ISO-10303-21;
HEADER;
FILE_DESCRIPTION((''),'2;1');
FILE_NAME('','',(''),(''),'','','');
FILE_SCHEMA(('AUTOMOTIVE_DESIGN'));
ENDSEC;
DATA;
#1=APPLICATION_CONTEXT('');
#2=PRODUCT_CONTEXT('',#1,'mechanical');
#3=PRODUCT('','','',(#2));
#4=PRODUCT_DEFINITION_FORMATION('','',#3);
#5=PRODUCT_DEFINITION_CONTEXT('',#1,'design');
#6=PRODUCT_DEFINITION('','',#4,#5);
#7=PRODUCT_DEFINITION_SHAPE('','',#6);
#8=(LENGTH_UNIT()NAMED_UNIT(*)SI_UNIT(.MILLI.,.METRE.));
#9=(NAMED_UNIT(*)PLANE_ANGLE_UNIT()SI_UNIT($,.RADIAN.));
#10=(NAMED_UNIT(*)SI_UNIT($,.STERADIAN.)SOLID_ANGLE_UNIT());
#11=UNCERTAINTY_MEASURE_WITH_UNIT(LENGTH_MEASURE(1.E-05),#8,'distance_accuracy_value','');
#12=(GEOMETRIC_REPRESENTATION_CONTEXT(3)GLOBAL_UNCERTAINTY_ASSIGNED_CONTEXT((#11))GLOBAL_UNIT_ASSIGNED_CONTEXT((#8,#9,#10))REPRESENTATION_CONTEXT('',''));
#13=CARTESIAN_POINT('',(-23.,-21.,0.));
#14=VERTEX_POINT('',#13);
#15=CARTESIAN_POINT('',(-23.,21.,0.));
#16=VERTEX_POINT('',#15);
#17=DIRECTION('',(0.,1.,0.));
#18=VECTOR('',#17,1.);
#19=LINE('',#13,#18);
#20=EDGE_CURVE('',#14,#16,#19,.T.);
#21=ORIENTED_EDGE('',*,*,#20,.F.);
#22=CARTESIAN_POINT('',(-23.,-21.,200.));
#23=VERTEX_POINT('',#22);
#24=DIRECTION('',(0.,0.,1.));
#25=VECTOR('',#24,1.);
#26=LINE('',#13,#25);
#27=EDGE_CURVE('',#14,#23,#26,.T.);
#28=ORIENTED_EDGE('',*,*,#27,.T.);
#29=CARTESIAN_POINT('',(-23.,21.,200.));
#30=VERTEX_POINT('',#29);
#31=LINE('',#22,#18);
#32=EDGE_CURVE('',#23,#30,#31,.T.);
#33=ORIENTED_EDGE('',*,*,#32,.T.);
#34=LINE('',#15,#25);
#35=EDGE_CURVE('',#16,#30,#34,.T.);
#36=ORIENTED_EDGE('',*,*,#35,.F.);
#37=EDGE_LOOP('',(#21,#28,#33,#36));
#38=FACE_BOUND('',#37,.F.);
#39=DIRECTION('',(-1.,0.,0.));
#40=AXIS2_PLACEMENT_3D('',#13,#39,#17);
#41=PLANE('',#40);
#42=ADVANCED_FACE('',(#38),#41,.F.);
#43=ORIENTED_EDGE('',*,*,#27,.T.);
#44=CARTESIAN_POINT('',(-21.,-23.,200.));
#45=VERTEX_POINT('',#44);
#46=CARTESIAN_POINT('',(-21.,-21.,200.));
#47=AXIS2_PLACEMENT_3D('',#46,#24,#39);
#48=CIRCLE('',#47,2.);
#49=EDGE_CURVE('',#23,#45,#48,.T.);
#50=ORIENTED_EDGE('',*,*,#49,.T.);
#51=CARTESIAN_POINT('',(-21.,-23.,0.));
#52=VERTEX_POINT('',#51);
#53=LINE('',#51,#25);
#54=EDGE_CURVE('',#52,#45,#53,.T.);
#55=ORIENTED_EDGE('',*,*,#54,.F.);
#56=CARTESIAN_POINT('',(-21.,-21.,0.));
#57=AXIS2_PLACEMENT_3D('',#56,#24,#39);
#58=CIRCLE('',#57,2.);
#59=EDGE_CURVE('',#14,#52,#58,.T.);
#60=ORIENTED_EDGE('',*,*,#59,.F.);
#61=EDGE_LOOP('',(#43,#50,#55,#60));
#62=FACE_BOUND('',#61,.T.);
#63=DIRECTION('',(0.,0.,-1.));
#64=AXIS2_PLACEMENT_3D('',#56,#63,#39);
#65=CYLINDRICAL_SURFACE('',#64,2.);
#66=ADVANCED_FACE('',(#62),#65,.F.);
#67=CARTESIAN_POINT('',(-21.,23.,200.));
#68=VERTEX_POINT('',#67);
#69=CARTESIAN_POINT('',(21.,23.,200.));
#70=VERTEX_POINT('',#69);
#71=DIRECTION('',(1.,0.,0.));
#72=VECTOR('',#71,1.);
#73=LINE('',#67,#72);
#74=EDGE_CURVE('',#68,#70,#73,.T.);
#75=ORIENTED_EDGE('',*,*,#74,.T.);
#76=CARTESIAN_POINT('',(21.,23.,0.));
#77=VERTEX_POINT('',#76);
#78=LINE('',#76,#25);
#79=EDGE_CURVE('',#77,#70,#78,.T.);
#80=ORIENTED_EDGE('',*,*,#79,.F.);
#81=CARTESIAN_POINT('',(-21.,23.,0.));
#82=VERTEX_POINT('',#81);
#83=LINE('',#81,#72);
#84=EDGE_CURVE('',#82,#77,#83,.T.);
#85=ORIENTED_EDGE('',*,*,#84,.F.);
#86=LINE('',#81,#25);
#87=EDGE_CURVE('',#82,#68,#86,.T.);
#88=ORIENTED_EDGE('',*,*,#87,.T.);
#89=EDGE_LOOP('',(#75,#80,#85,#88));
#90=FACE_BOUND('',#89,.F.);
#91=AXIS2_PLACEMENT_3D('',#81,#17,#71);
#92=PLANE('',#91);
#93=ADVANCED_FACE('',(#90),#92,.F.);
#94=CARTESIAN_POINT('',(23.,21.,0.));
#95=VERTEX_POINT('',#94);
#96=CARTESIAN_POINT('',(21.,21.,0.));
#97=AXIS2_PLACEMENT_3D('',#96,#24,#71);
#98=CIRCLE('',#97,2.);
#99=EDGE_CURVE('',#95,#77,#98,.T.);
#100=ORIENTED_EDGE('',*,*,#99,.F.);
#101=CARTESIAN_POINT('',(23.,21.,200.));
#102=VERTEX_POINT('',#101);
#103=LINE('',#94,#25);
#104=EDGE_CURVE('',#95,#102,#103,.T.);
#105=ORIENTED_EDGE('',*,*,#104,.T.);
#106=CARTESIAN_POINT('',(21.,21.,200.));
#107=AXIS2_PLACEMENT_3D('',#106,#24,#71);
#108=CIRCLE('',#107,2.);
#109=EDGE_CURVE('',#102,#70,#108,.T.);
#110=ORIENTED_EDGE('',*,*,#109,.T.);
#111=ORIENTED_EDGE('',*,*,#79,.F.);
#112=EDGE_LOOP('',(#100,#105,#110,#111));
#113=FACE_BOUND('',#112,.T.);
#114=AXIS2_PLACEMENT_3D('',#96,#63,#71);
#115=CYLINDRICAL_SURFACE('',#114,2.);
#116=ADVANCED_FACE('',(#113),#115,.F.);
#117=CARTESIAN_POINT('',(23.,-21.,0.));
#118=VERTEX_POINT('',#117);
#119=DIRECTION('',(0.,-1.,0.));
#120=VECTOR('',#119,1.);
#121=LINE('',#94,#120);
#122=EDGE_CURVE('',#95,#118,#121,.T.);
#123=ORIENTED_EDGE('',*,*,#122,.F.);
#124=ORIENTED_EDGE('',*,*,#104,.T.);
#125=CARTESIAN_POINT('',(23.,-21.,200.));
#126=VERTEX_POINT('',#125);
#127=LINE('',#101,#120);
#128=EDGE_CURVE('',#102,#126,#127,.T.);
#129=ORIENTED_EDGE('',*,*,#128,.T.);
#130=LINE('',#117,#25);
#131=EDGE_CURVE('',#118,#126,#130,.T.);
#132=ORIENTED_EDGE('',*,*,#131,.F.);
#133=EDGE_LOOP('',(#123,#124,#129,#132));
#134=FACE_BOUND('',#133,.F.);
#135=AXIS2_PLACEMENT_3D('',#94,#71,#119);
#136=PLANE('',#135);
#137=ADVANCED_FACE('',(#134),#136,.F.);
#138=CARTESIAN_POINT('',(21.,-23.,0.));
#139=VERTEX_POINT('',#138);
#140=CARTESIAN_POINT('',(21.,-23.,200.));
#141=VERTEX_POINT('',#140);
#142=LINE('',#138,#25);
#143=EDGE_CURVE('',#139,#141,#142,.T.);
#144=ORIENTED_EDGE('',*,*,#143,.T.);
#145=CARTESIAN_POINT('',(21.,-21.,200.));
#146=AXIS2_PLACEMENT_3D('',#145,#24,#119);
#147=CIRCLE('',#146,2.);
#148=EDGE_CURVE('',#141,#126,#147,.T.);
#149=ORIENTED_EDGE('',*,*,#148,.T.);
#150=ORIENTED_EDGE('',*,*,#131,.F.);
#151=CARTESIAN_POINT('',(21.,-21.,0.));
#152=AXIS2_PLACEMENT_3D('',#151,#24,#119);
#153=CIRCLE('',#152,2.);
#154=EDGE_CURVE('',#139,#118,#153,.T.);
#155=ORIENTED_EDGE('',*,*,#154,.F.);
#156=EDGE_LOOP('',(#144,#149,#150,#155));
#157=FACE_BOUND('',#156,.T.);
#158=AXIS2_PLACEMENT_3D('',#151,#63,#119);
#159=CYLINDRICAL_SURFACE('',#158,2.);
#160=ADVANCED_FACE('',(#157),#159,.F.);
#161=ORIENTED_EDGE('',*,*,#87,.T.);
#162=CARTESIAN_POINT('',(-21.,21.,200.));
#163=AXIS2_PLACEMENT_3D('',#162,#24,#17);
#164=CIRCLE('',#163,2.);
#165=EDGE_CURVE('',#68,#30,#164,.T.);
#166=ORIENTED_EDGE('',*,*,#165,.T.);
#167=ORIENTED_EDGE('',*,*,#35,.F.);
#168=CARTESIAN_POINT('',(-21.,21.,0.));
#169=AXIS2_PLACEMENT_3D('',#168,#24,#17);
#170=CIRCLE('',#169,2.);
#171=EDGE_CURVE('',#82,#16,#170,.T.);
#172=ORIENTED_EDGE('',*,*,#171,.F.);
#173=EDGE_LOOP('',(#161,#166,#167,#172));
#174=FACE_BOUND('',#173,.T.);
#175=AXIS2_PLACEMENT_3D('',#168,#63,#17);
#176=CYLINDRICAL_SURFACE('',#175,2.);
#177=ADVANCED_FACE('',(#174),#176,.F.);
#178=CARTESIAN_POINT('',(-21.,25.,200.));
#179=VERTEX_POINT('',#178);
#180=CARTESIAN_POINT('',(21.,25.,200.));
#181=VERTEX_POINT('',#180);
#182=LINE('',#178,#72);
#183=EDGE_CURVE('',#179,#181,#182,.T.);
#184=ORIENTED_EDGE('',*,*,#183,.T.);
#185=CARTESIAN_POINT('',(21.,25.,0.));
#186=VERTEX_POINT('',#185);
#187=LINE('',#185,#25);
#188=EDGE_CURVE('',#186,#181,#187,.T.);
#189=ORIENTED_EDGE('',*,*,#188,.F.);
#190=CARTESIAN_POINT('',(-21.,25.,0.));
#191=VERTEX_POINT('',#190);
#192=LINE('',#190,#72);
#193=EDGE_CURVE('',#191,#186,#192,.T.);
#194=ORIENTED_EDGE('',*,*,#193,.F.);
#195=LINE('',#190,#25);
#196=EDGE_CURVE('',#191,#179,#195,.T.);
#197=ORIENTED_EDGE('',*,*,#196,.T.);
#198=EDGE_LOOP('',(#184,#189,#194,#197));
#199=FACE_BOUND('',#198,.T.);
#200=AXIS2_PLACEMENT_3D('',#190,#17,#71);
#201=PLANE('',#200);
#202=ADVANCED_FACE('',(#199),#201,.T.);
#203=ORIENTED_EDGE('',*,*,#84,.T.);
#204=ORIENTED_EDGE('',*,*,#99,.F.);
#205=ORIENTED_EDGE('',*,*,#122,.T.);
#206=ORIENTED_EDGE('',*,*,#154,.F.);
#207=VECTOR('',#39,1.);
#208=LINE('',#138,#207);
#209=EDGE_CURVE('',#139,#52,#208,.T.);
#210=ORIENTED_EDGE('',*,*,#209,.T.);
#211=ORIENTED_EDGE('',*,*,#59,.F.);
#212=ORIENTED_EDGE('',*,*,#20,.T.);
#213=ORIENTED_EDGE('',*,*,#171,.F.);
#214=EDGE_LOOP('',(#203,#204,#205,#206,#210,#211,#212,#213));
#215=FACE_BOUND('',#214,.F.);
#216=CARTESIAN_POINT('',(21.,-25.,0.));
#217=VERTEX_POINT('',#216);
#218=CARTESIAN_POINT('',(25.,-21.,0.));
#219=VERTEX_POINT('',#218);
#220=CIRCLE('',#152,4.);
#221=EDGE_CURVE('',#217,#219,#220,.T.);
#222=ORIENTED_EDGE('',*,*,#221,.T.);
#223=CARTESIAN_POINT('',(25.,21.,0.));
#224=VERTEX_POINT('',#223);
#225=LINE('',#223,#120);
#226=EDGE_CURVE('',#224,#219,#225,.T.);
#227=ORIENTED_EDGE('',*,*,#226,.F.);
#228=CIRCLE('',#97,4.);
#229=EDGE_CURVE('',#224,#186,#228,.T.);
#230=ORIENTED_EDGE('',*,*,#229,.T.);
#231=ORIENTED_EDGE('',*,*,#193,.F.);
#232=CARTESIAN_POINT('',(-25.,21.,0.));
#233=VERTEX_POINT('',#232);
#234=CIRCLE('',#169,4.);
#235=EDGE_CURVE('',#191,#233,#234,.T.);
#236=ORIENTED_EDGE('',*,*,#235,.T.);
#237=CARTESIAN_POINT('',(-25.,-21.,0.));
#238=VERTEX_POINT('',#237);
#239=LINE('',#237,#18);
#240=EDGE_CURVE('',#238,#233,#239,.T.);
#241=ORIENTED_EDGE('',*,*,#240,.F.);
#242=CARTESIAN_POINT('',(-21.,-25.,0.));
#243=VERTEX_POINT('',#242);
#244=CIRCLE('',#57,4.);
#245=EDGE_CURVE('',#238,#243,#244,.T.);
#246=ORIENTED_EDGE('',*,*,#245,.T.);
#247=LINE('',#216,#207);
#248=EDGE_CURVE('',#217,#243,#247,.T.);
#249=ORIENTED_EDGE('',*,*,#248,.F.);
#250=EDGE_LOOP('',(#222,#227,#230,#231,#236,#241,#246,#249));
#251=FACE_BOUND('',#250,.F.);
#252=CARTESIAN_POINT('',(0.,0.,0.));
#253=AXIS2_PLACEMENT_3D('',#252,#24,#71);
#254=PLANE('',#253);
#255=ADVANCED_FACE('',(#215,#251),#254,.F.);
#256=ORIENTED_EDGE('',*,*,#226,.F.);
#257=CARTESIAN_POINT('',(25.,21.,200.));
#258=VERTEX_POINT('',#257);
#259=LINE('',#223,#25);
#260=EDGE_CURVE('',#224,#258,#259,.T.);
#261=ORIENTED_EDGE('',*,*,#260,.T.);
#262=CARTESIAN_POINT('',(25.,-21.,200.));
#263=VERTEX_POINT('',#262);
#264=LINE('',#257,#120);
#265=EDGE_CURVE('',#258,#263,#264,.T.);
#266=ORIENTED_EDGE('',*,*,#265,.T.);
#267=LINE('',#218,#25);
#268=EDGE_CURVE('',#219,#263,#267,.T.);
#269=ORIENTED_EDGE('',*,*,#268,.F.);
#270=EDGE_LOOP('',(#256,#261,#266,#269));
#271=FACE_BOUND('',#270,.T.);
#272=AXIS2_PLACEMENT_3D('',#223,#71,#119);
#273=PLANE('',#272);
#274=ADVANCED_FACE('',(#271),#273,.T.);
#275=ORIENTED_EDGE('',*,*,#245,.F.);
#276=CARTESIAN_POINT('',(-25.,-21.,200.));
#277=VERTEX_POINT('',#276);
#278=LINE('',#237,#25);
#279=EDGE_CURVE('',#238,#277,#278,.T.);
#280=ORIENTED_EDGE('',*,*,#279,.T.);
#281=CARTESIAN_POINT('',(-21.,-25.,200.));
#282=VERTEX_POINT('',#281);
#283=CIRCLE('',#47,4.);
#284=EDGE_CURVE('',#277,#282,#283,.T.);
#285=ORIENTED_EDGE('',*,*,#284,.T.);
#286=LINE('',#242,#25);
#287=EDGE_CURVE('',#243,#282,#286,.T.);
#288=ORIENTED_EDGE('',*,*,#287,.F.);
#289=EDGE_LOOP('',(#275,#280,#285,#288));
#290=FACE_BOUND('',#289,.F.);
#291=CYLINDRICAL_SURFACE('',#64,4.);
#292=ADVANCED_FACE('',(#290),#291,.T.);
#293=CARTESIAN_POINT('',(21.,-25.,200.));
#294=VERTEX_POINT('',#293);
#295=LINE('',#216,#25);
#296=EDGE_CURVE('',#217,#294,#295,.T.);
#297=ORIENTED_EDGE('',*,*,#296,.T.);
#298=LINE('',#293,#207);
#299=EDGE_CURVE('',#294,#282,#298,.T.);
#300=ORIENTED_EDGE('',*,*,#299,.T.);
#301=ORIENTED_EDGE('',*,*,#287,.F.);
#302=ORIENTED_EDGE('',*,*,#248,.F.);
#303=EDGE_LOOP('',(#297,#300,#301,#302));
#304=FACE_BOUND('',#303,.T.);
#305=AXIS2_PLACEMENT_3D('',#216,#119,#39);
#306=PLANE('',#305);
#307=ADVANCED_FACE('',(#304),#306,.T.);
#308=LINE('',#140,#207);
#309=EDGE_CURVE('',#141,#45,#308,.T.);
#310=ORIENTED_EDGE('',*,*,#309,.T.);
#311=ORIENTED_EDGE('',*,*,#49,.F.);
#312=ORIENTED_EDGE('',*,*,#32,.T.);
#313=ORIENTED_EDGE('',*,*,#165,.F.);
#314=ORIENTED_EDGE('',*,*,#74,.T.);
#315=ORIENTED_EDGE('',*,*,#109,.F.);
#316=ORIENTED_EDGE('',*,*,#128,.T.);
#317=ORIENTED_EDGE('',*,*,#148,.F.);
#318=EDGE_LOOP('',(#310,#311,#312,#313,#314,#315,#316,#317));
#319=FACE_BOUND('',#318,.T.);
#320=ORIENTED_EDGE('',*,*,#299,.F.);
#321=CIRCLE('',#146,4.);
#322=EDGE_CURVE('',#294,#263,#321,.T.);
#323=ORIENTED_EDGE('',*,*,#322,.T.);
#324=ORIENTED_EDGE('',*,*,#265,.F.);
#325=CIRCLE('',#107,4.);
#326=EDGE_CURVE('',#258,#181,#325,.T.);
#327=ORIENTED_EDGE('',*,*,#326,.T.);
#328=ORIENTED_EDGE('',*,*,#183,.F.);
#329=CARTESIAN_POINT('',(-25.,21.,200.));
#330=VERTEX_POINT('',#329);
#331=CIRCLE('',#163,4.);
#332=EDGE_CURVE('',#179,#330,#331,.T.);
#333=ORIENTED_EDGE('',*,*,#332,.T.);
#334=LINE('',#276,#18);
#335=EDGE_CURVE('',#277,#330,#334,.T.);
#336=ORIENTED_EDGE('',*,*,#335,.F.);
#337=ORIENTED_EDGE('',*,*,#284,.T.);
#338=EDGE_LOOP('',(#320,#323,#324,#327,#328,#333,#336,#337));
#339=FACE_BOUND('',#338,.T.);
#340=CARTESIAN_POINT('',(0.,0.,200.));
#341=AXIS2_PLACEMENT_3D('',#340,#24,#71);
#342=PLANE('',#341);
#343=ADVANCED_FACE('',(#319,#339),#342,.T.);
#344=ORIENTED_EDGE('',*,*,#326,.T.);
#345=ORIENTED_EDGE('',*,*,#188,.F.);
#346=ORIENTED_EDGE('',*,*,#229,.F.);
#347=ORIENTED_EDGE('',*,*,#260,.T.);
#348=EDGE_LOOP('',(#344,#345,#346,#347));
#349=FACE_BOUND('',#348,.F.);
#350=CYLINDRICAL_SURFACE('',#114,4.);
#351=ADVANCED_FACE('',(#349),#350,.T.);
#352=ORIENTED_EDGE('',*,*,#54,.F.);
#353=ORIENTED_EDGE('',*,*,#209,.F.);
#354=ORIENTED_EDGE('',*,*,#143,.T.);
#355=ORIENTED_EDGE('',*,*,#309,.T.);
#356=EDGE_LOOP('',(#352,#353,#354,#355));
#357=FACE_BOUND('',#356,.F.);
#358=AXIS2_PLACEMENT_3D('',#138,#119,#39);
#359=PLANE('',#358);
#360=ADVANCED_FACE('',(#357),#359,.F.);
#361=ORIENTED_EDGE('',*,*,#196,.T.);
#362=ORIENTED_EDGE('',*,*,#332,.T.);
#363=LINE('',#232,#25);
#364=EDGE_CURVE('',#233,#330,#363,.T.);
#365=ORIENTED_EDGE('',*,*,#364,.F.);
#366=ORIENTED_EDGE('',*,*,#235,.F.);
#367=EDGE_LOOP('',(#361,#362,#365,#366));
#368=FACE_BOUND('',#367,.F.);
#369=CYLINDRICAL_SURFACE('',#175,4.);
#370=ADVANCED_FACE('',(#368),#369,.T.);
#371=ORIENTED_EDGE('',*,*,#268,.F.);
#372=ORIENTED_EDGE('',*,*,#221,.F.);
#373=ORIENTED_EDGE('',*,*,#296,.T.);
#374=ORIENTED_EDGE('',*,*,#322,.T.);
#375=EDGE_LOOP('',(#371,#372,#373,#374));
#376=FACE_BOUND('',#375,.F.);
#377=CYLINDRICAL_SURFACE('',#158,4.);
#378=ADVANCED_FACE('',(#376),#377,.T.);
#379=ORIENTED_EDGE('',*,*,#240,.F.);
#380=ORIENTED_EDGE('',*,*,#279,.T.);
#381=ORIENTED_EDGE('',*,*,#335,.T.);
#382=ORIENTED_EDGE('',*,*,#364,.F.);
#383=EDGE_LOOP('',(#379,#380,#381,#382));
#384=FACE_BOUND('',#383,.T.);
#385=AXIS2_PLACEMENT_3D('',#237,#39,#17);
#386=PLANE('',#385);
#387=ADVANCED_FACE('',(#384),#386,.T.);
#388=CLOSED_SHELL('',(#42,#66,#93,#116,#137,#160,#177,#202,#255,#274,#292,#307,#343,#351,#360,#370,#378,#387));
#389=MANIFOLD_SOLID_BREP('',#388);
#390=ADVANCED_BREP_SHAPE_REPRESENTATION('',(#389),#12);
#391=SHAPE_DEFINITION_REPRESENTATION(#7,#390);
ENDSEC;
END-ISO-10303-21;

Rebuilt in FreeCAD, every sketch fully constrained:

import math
import FreeCAD as App
import Part
import Sketcher

doc = App.newDocument("Part")
params = doc.addObject("Spreadsheet::Sheet", "Params")
for row, (alias, value) in enumerate([
    ("sketch1_radius", "4 mm"),
    ("sketch1_radius2", "2 mm"),
    ("pad1_length", "200 mm"),
], start=1):
    params.set(f"A{row}", alias)
    params.set(f"B{row}", "=" + value)
    params.setAlias(f"B{row}", alias)

body = doc.addObject("PartDesign::Body", "Body")

sketch1 = body.newObject("Sketcher::SketchObject", "Sketch")
sketch1.AttachmentSupport = (doc.getObject("XY_Plane"), [""])
sketch1.MapMode = "FlatFace"
sketch1.addGeometry(Part.LineSegment(App.Vector(-25, 21, 0), App.Vector(-25, -21, 0)), False)
sketch1.addGeometry(Part.ArcOfCircle(Part.Circle(App.Vector(-21, -21, 0), App.Vector(0, 0, 1), 4), math.radians(180), math.radians(270)), False)
sketch1.addGeometry(Part.LineSegment(App.Vector(-21, -25, 0), App.Vector(21, -25, 0)), False)
sketch1.addGeometry(Part.ArcOfCircle(Part.Circle(App.Vector(21, -21, 0), App.Vector(0, 0, 1), 4), math.radians(-90), math.radians(0)), False)
sketch1.addGeometry(Part.LineSegment(App.Vector(25, -21, 0), App.Vector(25, 21, 0)), False)
sketch1.addGeometry(Part.ArcOfCircle(Part.Circle(App.Vector(21, 21, 0), App.Vector(0, 0, 1), 4), math.radians(0), math.radians(90)), False)
sketch1.addGeometry(Part.LineSegment(App.Vector(21, 25, 0), App.Vector(-21, 25, 0)), False)
sketch1.addGeometry(Part.ArcOfCircle(Part.Circle(App.Vector(-21, 21, 0), App.Vector(0, 0, 1), 4), math.radians(90), math.radians(180)), False)
sketch1.addGeometry(Part.ArcOfCircle(Part.Circle(App.Vector(-21, 21, 0), App.Vector(0, 0, 1), 2), math.radians(90), math.radians(180)), False)
sketch1.addGeometry(Part.LineSegment(App.Vector(-21, 23, 0), App.Vector(21, 23, 0)), False)
sketch1.addGeometry(Part.ArcOfCircle(Part.Circle(App.Vector(21, 21, 0), App.Vector(0, 0, 1), 2), math.radians(0), math.radians(90)), False)
sketch1.addGeometry(Part.LineSegment(App.Vector(23, 21, 0), App.Vector(23, -21, 0)), False)
sketch1.addGeometry(Part.ArcOfCircle(Part.Circle(App.Vector(21, -21, 0), App.Vector(0, 0, 1), 2), math.radians(-90), math.radians(0)), False)
sketch1.addGeometry(Part.LineSegment(App.Vector(21, -23, 0), App.Vector(-21, -23, 0)), False)
sketch1.addGeometry(Part.ArcOfCircle(Part.Circle(App.Vector(-21, -21, 0), App.Vector(0, 0, 1), 2), math.radians(180), math.radians(270)), False)
sketch1.addGeometry(Part.LineSegment(App.Vector(-23, -21, 0), App.Vector(-23, 21, 0)), False)
sketch1.addConstraint(Sketcher.Constraint("Tangent", 0, 2, 1, 1))
sketch1.addConstraint(Sketcher.Constraint("Tangent", 1, 2, 2, 1))
sketch1.addConstraint(Sketcher.Constraint("Tangent", 2, 2, 3, 1))
sketch1.addConstraint(Sketcher.Constraint("Tangent", 3, 2, 4, 1))
sketch1.addConstraint(Sketcher.Constraint("Tangent", 4, 2, 5, 1))
sketch1.addConstraint(Sketcher.Constraint("Tangent", 5, 2, 6, 1))
sketch1.addConstraint(Sketcher.Constraint("Tangent", 6, 2, 7, 1))
sketch1.addConstraint(Sketcher.Constraint("Tangent", 7, 2, 0, 1))
sketch1.addConstraint(Sketcher.Constraint("Tangent", 8, 1, 9, 1))
sketch1.addConstraint(Sketcher.Constraint("Tangent", 9, 2, 10, 2))
sketch1.addConstraint(Sketcher.Constraint("Tangent", 10, 1, 11, 1))
sketch1.addConstraint(Sketcher.Constraint("Tangent", 11, 2, 12, 2))
sketch1.addConstraint(Sketcher.Constraint("Tangent", 12, 1, 13, 1))
sketch1.addConstraint(Sketcher.Constraint("Tangent", 13, 2, 14, 2))
sketch1.addConstraint(Sketcher.Constraint("Tangent", 14, 1, 15, 1))
sketch1.addConstraint(Sketcher.Constraint("Tangent", 15, 2, 8, 2))
sketch1.addConstraint(Sketcher.Constraint("Vertical", 0))
sketch1.addConstraint(Sketcher.Constraint("Horizontal", 2))
sketch1.addConstraint(Sketcher.Constraint("Vertical", 4))
sketch1.addConstraint(Sketcher.Constraint("Horizontal", 6))
sketch1.addConstraint(Sketcher.Constraint("Horizontal", 9))
sketch1.addConstraint(Sketcher.Constraint("Vertical", 11))
sketch1.addConstraint(Sketcher.Constraint("Horizontal", 13))
sketch1.addConstraint(Sketcher.Constraint("Vertical", 15))
sketch1.addConstraint(Sketcher.Constraint("Coincident", 8, 3, 7, 3))
sketch1.addConstraint(Sketcher.Constraint("Coincident", 10, 3, 5, 3))
sketch1.addConstraint(Sketcher.Constraint("Coincident", 12, 3, 3, 3))
sketch1.addConstraint(Sketcher.Constraint("Equal", 1, 3))
sketch1.addConstraint(Sketcher.Constraint("Equal", 3, 5))
sketch1.addConstraint(Sketcher.Constraint("Equal", 5, 7))
sketch1.addConstraint(Sketcher.Constraint("Equal", 12, 14))
sketch1.addConstraint(Sketcher.Constraint("Symmetric", 1, 3, 5, 3, -1, 1))
sketch1.addConstraint(Sketcher.Constraint("Equal", 13, 0))
sketch1.addConstraint(Sketcher.Constraint("Radius", 1, 4.0))
sketch1.addConstraint(Sketcher.Constraint("Radius", 8, 2.0))
sketch1.addConstraint(Sketcher.Constraint("DistanceX", 0, 2, -1, 1, 25.0))
sketch1.setExpression("Constraints[33]", "Params.sketch1_radius")
sketch1.setExpression("Constraints[34]", "Params.sketch1_radius2")
pad1 = body.newObject("PartDesign::Pad", "Pad")
pad1.Profile = sketch1
pad1.setExpression("Length", "Params.pad1_length")

doc.recompute()
